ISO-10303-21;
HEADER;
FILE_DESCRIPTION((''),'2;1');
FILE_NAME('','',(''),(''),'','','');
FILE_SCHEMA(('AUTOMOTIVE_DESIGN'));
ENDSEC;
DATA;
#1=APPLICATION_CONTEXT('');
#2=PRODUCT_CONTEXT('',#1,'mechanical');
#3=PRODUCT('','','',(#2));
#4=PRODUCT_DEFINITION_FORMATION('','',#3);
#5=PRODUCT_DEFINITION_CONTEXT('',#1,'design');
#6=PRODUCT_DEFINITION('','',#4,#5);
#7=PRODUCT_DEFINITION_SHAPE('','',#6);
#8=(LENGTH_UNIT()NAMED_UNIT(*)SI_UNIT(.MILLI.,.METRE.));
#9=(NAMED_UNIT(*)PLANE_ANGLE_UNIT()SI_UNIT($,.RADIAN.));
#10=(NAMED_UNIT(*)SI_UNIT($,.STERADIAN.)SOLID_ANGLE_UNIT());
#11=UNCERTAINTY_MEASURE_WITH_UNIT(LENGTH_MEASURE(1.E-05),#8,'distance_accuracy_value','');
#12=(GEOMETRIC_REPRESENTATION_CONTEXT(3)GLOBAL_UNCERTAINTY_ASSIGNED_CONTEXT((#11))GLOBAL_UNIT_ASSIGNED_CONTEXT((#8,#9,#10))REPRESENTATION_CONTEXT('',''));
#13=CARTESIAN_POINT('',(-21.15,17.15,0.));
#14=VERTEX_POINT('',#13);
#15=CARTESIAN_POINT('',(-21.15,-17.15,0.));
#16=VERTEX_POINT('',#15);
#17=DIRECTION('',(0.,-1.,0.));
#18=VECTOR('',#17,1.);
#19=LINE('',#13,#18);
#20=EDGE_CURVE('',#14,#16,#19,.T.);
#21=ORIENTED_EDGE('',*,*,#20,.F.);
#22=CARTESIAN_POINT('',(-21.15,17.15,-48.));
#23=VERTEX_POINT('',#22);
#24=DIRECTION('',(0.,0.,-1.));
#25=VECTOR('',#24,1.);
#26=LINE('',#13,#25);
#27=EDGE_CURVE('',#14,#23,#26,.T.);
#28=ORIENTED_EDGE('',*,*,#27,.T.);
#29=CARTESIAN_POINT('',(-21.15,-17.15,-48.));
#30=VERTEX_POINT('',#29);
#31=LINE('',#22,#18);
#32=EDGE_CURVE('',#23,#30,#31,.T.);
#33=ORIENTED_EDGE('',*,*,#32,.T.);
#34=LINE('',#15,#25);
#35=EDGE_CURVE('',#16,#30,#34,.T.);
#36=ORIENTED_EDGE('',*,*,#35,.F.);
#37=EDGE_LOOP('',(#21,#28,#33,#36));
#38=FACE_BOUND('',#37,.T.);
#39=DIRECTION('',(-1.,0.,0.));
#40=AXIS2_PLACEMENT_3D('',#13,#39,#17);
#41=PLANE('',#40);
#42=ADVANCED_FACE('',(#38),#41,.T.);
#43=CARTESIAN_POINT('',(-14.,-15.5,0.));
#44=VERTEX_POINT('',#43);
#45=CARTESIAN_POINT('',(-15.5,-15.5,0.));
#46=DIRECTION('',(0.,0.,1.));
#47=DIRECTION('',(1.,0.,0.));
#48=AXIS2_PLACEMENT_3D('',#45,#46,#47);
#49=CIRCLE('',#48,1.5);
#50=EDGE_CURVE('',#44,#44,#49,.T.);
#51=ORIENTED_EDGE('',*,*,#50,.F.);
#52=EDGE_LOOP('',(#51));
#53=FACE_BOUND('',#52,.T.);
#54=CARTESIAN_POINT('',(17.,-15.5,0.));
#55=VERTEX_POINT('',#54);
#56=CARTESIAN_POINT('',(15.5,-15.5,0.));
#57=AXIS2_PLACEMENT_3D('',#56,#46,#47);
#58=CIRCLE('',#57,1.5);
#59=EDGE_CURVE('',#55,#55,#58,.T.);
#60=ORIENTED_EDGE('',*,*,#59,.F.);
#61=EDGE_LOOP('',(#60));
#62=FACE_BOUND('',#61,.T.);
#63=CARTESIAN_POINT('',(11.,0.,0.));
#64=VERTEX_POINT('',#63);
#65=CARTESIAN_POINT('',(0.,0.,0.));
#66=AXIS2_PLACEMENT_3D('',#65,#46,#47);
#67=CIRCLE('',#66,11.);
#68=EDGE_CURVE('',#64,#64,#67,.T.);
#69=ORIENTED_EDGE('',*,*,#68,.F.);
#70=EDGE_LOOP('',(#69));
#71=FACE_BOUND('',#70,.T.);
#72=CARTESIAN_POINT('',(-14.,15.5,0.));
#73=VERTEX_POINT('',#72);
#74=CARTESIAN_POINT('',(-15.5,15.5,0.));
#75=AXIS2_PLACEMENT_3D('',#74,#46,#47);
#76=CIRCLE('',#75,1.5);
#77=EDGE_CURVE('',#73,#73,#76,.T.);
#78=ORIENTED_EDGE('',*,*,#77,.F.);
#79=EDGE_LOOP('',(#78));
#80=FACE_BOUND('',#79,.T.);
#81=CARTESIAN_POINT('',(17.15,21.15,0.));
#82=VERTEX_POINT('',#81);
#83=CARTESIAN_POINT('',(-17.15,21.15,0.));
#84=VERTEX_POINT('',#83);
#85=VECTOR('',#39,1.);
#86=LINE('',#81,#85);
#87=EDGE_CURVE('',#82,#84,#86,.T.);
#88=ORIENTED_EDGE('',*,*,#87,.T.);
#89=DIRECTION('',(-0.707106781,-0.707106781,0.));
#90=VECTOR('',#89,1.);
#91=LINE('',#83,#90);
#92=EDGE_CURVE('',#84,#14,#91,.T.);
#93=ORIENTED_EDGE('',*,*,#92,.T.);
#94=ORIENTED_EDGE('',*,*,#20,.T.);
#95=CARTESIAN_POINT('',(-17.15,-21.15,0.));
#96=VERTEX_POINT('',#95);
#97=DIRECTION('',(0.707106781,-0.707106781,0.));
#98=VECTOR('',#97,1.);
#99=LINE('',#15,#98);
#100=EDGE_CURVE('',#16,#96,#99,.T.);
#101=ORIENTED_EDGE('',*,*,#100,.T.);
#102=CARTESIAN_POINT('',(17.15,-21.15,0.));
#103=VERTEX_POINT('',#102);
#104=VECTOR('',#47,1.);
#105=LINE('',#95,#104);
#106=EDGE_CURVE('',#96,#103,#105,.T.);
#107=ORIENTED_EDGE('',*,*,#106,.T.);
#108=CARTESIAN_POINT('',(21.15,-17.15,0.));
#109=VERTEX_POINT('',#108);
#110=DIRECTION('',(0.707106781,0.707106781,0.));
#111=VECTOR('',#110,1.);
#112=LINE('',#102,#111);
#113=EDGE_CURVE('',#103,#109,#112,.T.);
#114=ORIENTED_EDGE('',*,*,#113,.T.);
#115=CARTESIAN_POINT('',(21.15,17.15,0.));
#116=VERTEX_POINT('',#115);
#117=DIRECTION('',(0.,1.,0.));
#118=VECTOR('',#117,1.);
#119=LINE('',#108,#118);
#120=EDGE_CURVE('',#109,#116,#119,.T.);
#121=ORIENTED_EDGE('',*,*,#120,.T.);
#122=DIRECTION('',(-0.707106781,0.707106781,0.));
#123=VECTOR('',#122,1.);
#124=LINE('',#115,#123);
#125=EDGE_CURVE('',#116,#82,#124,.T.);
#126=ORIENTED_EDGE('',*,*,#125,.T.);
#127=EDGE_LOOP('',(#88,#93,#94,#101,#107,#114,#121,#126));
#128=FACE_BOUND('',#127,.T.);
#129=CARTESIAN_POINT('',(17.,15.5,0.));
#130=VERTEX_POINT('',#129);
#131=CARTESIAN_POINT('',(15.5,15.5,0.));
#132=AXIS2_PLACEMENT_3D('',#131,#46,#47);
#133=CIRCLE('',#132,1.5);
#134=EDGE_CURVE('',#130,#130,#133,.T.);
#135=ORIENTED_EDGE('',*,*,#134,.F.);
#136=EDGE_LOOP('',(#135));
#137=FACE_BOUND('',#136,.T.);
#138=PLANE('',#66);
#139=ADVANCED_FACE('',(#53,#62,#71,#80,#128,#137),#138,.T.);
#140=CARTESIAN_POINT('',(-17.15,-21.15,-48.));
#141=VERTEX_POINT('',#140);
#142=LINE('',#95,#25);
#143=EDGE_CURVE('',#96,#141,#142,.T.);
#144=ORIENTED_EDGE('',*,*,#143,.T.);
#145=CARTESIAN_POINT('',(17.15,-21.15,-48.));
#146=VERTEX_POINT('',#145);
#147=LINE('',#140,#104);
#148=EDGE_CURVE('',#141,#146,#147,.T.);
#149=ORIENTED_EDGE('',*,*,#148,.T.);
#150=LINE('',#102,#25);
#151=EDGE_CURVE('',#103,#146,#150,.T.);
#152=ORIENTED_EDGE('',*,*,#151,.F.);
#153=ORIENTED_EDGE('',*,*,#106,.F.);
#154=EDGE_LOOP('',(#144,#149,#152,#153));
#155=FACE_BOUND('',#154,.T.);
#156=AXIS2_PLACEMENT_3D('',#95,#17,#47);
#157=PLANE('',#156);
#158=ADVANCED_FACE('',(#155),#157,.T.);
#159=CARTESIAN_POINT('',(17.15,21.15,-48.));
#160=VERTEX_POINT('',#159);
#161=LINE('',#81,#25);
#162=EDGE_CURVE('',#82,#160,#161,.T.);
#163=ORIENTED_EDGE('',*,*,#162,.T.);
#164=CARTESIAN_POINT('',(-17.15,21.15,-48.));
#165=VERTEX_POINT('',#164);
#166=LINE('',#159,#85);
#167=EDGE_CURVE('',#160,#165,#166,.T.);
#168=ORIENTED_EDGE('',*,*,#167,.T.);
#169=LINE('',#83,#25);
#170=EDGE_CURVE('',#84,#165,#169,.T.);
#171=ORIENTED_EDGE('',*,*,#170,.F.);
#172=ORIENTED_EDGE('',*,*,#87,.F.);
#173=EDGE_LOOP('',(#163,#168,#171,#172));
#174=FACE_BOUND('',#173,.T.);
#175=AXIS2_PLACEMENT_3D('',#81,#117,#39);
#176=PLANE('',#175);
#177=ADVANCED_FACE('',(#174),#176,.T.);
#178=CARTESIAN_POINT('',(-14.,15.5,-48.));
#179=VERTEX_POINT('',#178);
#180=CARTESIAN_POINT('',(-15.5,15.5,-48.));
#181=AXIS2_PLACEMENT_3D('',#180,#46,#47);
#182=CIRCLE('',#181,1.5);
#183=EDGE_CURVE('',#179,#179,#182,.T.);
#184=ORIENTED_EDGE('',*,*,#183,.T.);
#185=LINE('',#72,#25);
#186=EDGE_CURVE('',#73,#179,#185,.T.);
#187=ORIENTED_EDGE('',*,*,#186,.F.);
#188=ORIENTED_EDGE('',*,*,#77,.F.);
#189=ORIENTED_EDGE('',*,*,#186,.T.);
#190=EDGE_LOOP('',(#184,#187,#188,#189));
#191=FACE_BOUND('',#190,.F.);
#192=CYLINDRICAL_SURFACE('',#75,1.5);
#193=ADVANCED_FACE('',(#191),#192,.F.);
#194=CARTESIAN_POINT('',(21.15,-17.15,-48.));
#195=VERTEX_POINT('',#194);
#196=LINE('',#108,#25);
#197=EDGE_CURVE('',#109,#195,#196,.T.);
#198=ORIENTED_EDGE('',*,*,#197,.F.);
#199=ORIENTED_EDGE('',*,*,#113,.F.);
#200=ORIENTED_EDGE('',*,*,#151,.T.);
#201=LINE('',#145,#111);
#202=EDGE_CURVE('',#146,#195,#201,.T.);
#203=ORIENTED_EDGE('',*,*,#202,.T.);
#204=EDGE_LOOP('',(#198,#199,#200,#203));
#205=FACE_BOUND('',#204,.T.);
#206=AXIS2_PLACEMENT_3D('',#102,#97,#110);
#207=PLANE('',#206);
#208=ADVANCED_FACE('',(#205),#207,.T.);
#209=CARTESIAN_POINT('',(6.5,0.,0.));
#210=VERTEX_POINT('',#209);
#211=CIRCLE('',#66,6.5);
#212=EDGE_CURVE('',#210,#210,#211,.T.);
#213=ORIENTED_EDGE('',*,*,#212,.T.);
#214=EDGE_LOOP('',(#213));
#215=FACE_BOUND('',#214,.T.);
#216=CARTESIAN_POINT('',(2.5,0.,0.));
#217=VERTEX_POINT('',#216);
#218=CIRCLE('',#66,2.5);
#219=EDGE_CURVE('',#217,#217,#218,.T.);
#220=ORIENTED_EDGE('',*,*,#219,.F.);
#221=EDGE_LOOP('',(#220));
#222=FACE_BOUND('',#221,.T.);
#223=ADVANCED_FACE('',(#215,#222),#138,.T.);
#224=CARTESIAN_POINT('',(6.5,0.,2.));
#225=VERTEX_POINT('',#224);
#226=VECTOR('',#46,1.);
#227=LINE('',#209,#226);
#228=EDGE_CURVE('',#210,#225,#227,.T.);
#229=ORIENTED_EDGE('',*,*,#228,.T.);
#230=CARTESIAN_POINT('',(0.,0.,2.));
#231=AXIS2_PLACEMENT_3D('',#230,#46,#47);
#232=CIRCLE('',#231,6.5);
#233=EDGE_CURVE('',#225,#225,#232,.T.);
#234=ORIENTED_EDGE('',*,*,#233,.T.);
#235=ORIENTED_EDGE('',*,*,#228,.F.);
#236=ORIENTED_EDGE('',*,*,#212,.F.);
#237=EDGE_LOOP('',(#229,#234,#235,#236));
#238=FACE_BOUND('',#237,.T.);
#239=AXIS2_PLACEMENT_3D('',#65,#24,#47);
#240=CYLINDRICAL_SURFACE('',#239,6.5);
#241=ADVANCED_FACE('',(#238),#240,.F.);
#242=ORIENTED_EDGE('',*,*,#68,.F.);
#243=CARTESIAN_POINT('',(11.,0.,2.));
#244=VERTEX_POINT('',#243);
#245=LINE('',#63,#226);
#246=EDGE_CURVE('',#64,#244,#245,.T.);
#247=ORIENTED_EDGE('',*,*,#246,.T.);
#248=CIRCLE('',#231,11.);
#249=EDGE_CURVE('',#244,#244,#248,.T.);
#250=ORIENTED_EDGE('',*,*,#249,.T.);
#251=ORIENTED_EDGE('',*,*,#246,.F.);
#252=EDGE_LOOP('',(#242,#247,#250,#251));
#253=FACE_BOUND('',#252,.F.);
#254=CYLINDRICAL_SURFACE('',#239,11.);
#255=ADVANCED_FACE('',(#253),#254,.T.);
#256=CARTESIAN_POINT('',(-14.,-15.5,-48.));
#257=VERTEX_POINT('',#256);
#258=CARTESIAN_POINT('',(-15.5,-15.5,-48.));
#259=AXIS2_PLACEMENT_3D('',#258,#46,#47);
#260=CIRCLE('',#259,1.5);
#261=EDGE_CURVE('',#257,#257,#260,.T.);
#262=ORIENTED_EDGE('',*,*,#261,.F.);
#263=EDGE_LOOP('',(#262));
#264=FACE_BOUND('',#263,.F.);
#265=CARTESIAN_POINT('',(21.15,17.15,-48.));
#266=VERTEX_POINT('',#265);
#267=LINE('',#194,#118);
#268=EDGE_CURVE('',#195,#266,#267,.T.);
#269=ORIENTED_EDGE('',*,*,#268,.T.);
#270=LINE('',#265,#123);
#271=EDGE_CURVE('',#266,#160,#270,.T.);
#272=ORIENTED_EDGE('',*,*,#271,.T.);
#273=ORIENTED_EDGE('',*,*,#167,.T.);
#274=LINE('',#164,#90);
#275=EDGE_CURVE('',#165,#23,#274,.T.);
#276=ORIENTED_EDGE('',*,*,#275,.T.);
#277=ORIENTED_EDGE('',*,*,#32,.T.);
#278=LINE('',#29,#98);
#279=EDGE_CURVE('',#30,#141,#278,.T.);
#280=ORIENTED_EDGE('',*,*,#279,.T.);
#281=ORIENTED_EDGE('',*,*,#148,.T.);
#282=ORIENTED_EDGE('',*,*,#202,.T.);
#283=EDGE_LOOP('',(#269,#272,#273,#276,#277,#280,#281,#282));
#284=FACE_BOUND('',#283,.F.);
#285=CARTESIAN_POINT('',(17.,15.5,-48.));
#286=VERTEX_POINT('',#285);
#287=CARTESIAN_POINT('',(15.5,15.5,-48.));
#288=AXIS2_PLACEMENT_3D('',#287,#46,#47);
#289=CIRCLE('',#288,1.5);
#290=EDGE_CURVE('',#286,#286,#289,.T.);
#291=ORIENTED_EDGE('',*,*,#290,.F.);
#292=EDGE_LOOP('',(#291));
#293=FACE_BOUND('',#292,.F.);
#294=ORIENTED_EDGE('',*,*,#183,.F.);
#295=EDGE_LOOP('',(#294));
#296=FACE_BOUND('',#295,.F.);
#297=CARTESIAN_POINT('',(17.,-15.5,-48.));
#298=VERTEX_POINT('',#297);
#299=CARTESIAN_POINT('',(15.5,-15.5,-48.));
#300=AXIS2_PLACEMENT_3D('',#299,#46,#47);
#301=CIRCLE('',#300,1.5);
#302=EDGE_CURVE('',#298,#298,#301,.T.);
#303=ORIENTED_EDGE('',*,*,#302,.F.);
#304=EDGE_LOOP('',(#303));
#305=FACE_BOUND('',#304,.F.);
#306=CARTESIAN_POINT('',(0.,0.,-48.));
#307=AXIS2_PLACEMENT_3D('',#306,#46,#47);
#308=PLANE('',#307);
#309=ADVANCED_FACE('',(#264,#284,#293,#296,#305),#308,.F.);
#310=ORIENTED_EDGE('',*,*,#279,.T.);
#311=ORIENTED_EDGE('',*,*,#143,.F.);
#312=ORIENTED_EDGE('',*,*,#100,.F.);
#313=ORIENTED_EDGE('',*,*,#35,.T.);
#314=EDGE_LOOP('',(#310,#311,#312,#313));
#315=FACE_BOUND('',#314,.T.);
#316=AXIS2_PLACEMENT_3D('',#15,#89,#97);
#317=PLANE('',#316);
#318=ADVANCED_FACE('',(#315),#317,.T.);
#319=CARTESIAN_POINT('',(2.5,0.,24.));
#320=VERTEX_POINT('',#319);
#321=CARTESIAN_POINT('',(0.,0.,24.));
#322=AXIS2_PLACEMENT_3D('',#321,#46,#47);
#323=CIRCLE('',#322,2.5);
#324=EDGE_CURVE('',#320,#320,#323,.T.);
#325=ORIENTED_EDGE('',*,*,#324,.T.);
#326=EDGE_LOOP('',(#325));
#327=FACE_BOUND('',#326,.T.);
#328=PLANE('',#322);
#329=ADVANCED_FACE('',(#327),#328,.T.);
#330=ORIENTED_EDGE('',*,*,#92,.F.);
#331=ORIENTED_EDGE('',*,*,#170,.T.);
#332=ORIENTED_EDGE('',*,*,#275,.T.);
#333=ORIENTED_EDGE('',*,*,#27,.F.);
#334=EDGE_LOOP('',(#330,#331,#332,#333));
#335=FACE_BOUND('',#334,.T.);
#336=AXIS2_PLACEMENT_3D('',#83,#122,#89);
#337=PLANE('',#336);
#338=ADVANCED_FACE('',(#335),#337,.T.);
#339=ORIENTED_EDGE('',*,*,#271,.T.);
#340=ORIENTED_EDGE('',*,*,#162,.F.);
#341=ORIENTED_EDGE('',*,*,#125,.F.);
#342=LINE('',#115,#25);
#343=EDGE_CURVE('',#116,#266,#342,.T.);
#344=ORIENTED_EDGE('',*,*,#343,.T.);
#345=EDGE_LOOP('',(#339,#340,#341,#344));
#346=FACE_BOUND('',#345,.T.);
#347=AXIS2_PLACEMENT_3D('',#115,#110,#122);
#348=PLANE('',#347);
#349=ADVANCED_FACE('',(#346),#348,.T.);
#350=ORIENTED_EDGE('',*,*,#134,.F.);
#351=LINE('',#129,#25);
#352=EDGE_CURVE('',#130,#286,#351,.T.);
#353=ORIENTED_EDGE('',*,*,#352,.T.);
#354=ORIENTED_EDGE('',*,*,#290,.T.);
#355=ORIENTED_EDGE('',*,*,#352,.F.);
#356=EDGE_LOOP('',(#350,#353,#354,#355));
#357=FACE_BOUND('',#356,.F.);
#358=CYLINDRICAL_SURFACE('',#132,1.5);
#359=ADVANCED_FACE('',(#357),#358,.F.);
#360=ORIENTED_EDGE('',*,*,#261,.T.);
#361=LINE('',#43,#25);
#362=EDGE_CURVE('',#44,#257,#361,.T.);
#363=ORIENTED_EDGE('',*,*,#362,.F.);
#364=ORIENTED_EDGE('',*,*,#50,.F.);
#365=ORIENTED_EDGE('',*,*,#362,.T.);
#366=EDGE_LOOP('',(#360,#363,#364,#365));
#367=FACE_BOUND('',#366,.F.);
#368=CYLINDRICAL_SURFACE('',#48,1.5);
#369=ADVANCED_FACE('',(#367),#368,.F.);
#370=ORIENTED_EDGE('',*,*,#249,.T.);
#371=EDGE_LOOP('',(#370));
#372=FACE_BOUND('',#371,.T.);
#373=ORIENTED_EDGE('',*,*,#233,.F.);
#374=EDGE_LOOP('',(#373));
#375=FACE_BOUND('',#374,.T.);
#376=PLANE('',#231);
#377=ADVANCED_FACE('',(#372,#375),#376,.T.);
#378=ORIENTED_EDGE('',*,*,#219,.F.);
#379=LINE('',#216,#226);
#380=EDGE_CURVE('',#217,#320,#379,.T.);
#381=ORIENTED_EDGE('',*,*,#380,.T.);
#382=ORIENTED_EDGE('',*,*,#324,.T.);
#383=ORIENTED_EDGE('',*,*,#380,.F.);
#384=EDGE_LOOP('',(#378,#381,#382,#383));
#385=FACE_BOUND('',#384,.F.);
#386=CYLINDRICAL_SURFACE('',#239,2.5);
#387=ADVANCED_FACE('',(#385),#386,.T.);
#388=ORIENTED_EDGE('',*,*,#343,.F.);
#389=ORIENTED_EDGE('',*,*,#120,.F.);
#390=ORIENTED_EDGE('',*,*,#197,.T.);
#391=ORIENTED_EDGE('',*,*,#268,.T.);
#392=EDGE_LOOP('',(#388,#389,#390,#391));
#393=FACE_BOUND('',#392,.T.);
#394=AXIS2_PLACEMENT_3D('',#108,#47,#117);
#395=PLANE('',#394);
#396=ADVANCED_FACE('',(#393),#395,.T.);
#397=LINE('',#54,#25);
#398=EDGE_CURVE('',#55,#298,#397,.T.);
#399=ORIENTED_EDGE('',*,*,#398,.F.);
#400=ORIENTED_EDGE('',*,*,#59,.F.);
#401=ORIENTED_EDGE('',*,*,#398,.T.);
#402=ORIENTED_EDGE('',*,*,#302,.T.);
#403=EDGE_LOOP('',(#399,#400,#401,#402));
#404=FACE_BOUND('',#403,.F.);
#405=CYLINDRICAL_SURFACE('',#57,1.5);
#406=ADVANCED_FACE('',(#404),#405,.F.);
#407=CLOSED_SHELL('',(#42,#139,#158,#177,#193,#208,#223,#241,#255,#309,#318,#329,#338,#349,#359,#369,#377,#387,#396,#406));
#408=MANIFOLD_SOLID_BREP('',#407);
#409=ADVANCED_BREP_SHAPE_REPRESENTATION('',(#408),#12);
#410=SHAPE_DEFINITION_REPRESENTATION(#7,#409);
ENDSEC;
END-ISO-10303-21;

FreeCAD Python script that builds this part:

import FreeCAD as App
import Part
import Sketcher
from FreeCAD import Vector
Q = App.Units.Quantity


def add_polygon(sketch, points):
    """Adds a closed chain of lines whose ends are joined by coincident constraints."""
    first, n = sketch.GeometryCount, len(points)
    for a, b in zip(points, points[1:] + points[:1]):
        sketch.addGeometry(Part.LineSegment(App.Vector(*a, 0), App.Vector(*b, 0)), False)
    for i in range(n):
        sketch.addConstraint(Sketcher.Constraint("Coincident", first + i, 2, first + (i + 1) % n, 1))

doc = App.newDocument("Part")
params = doc.addObject("Spreadsheet::Sheet", "Params")
for row, (alias, value) in enumerate([
    ("sketch1_diameter", "3 mm"),
    ("sketch1_width", "34.3 mm"),
    ("pad1_length", "48 mm"),
    ("sketch2_diameter", "22 mm"),
    ("sketch2_diameter2", "13 mm"),
    ("pad2_length", "2 mm"),
    ("sketch3_diameter", "5 mm"),
    ("pad3_length", "24 mm"),
], start=1):
    params.set(f"A{row}", alias)
    params.set(f"B{row}", "=" + value)
    params.setAlias(f"B{row}", alias)

body = doc.addObject("PartDesign::Body", "Body")

sketch1 = doc.addObject("Sketcher::SketchObject", "Sketch")
body.addObject(sketch1)
sketch1.AttachmentSupport = (doc.XY_Plane, [""])
sketch1.MapMode = "FlatFace"
add_polygon(sketch1, [(-21.1, 17.1), (-21.1, -17.1), (-17.1, -21.1), (17.1, -21.1), (21.1, -17.1), (21.1, 17.1), (17.1, 21.1), (-17.1, 21.1)])
sketch1.addGeometry(Part.Circle(Vector(-15.5, -15.5, 0), Vector(0, 0, 1), 1.5), False)
sketch1.addGeometry(Part.Circle(Vector(15.5, -15.5, 0), Vector(0, 0, 1), 1.5), False)
sketch1.addGeometry(Part.Circle(Vector(-15.5, 15.5, 0), Vector(0, 0, 1), 1.5), False)
sketch1.addGeometry(Part.Circle(Vector(15.5, 15.5, 0), Vector(0, 0, 1), 1.5), False)
sketch1.addConstraint(Sketcher.Constraint("Vertical", 0))
sketch1.addConstraint(Sketcher.Constraint("Horizontal", 2))
sketch1.addConstraint(Sketcher.Constraint("Vertical", 4))
sketch1.addConstraint(Sketcher.Constraint("Horizontal", 6))
sketch1.addConstraint(Sketcher.Constraint("Equal", 8, 9))
sketch1.addConstraint(Sketcher.Constraint("Equal", 9, 10))
sketch1.addConstraint(Sketcher.Constraint("Equal", 10, 11))
sketch1.addConstraint(Sketcher.Constraint("Symmetric", 9, 3, 10, 3, -1, 1))
sketch1.addConstraint(Sketcher.Constraint("Symmetric", 8, 3, 11, 3, -1, 1))
sketch1.addConstraint(Sketcher.Constraint("Symmetric", 0, 2, 4, 2, -1, 1))
sketch1.addConstraint(Sketcher.Constraint("Symmetric", 1, 2, 5, 2, -1, 1))
sketch1.addConstraint(Sketcher.Constraint("Symmetric", 8, 3, 9, 3, -2))
sketch1.addConstraint(Sketcher.Constraint("Perpendicular", 1, 3))
sketch1.addConstraint(Sketcher.Constraint("Perpendicular", 5, 7))
sketch1.addConstraint(Sketcher.Constraint("Horizontal", 0, 2, 3, 2))
sketch1.addConstraint(Sketcher.Constraint("Horizontal", 4, 2, 7, 2))
sketch1.addConstraint(Sketcher.Constraint("Vertical", 2, 2, 5, 2))
sketch1.addConstraint(Sketcher.Constraint("Equal", 6, 0))
sketch1.addConstraint(Sketcher.Constraint("Diameter", 8, Q("3 mm")))
sketch1.addConstraint(Sketcher.Constraint("DistanceX", 2, 1, 2, 2, Q("34.3 mm")))
sketch1.addConstraint(Sketcher.Constraint("DistanceX", 8, 3, 9, 3, Q("31 mm")))
sketch1.addConstraint(Sketcher.Constraint("DistanceY", 8, 3, 10, 3, Q("31 mm")))
sketch1.addConstraint(Sketcher.Constraint("DistanceX", 0, 2, 1, 2, Q("4 mm")))
sketch1.setExpression("Constraints[26]", "Params.sketch1_diameter")
sketch1.setExpression("Constraints[27]", "Params.sketch1_width")
pad1 = doc.addObject("PartDesign::Pad", "Pad")
body.addObject(pad1)
pad1.Profile = sketch1
pad1.setExpression("Length", "Params.pad1_length")
pad1.Reversed = True

sketch2 = doc.addObject("Sketcher::SketchObject", "Sketch001")
body.addObject(sketch2)
sketch2.AttachmentSupport = (doc.XY_Plane, [""])
sketch2.MapMode = "FlatFace"
sketch2.addGeometry(Part.Circle(Vector(0, 0, 0), Vector(0, 0, 1), 11), False)
sketch2.addGeometry(Part.Circle(Vector(0, 0, 0), Vector(0, 0, 1), 6), False)
sketch2.addConstraint(Sketcher.Constraint("Coincident", 0, 3, -1, 1))
sketch2.addConstraint(Sketcher.Constraint("Coincident", 1, 3, -1, 1))
sketch2.addConstraint(Sketcher.Constraint("Diameter", 0, Q("22 mm")))
sketch2.addConstraint(Sketcher.Constraint("Diameter", 1, Q("13 mm")))
sketch2.setExpression("Constraints[2]", "Params.sketch2_diameter")
sketch2.setExpression("Constraints[3]", "Params.sketch2_diameter2")
pad2 = doc.addObject("PartDesign::Pad", "Pad001")
body.addObject(pad2)
pad2.Profile = sketch2
pad2.setExpression("Length", "Params.pad2_length")

sketch3 = doc.addObject("Sketcher::SketchObject", "Sketch002")
body.addObject(sketch3)
sketch3.AttachmentSupport = (doc.XY_Plane, [""])
sketch3.MapMode = "FlatFace"
sketch3.addGeometry(Part.Circle(Vector(0, 0, 0), Vector(0, 0, 1), 2.5), False)
sketch3.addConstraint(Sketcher.Constraint("Coincident", 0, 3, -1, 1))
sketch3.addConstraint(Sketcher.Constraint("Diameter", 0, Q("5 mm")))
sketch3.setExpression("Constraints[1]", "Params.sketch3_diameter")
pad3 = doc.addObject("PartDesign::Pad", "Pad002")
body.addObject(pad3)
pad3.Profile = sketch3
pad3.setExpression("Length", "Params.pad3_length")

doc.recompute()
